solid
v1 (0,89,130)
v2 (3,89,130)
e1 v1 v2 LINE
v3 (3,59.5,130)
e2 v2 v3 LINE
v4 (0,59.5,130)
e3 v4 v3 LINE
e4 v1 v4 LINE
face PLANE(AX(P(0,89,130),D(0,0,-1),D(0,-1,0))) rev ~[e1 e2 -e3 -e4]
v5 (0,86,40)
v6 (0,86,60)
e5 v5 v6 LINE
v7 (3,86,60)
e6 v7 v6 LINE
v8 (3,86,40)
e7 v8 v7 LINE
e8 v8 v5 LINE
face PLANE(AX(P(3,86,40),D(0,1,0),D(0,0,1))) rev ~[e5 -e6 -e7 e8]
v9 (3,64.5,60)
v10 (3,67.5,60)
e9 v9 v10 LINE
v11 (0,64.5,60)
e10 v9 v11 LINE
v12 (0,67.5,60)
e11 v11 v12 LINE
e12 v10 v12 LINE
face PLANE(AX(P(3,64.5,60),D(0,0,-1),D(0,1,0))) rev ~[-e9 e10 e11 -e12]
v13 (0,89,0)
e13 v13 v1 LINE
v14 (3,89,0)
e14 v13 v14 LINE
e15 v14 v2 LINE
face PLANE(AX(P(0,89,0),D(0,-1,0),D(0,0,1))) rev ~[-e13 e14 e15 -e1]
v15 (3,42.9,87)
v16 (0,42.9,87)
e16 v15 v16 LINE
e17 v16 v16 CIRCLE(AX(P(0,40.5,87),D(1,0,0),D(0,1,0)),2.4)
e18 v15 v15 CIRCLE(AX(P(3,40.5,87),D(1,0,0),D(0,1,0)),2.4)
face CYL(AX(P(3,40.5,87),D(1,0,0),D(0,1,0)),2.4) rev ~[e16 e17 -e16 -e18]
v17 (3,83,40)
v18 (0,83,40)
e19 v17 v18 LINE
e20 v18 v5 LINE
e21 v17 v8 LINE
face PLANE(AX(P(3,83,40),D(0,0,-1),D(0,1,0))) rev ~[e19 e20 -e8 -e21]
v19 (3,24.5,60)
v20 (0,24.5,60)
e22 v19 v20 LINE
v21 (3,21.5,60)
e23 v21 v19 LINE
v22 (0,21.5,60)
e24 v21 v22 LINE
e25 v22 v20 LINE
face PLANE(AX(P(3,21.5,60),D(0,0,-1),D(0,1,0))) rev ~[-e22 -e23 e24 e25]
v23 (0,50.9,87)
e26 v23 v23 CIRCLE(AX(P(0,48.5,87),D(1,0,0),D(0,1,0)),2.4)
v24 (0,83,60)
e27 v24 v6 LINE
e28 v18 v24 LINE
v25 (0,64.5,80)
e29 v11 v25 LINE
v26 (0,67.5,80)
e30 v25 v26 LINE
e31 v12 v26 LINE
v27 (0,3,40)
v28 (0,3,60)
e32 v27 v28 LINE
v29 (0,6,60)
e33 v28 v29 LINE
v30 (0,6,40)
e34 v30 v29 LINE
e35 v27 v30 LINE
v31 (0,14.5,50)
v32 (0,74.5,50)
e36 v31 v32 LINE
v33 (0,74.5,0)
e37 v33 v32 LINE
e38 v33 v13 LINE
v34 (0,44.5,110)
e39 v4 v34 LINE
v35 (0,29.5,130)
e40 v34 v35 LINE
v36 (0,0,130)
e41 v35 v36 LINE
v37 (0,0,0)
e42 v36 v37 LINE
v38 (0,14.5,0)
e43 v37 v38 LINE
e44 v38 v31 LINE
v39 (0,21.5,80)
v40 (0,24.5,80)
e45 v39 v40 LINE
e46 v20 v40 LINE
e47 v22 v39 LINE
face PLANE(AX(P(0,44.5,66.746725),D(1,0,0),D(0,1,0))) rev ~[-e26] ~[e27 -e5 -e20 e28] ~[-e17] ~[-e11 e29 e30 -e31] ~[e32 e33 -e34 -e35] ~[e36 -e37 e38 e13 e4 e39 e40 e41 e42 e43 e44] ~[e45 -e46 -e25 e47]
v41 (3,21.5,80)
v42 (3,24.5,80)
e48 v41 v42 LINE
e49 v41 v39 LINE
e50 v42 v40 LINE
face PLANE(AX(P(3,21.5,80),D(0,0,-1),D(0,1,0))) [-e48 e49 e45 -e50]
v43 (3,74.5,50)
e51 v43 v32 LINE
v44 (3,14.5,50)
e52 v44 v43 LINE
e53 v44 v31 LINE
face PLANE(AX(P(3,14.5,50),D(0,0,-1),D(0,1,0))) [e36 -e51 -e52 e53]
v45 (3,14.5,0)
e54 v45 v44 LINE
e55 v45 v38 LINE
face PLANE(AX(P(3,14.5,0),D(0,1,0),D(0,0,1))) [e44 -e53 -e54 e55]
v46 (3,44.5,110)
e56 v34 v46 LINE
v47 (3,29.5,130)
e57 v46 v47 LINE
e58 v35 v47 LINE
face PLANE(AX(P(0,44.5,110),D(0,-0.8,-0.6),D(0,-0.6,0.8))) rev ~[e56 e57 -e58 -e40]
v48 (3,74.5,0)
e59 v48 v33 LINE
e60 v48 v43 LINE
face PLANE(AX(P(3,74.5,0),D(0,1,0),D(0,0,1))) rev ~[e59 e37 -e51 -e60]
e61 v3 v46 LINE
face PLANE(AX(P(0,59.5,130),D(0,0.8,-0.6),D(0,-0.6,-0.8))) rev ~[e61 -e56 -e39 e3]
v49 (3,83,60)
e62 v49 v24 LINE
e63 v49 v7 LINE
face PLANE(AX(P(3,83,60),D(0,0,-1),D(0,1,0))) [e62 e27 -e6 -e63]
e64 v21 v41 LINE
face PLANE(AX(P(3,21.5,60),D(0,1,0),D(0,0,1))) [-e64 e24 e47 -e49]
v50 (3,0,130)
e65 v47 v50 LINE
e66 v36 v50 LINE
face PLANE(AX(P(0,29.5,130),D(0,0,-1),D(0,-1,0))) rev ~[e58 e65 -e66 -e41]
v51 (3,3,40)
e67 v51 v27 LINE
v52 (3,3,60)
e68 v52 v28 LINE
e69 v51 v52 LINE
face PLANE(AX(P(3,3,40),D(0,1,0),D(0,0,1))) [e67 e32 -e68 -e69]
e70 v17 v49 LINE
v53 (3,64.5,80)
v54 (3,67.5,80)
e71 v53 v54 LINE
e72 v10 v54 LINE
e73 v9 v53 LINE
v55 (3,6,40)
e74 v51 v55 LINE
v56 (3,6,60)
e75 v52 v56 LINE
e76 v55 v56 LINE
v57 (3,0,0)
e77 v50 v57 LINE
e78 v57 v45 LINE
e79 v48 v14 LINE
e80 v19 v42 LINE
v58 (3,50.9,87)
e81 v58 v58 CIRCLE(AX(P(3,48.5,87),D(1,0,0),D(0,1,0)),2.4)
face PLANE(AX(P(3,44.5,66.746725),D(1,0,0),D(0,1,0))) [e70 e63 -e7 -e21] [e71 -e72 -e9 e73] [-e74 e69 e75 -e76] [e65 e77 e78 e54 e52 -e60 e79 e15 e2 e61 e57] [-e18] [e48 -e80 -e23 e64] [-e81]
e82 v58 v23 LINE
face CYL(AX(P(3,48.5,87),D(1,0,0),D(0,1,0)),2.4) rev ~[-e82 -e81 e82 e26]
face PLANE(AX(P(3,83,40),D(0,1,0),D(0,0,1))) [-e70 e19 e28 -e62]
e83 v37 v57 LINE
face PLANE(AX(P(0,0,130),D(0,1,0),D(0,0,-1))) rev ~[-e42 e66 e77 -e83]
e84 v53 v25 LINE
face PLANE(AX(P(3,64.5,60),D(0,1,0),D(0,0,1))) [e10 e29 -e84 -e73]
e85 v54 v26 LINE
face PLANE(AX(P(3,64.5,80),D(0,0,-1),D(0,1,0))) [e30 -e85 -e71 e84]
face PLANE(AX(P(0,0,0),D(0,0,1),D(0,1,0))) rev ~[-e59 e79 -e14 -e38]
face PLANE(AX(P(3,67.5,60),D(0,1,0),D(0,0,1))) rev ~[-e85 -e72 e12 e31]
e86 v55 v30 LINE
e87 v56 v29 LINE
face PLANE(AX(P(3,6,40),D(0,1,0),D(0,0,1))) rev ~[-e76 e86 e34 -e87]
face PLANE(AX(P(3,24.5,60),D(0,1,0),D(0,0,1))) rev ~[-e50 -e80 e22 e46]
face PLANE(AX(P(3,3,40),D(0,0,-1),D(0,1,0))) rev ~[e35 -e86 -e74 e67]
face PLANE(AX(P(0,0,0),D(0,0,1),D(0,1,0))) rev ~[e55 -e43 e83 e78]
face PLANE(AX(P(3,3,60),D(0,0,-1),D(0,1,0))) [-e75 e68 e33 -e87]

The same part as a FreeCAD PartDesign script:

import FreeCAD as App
import Part
import Sketcher

doc = App.newDocument("Part")
params = doc.addObject("Spreadsheet::Sheet", "Params")
for row, (alias, value) in enumerate([
    ("sketch1_width", "89 mm"),
    ("sketch1_height", "130 mm"),
    ("sketch1_length", "25 mm"),
    ("sketch1_width2", "29.5 mm"),
    ("pad1_length", "3 mm"),
    ("sketch2_diameter", "4.8 mm"),
    ("sketch2_width", "3 mm"),
    ("sketch2_width2", "60 mm"),
    ("sketch2_height", "20 mm"),
    ("sketch2_height2", "50 mm"),
    ("pocket1_length", "25 mm"),
], start=1):
    params.set(f"A{row}", alias)
    params.set(f"B{row}", "=" + value)
    params.setAlias(f"B{row}", alias)

body = doc.addObject("PartDesign::Body", "Body")

# Sketch on YZ plane
sketch1 = body.newObject("Sketcher::SketchObject", "Sketch")
sketch1.AttachmentSupport = (doc.getObject("YZ_Plane"), [""])
sketch1.MapMode = "FlatFace"
sketch1.addGeometry([
    Part.LineSegment(App.Vector(30, 130, 0), App.Vector(0, 130, 0)),  # 0
    Part.LineSegment(App.Vector(0, 130, 0), App.Vector(0, 0, 0)),  # 1
    Part.LineSegment(App.Vector(0, 0, 0), App.Vector(89, 0, 0)),  # 2
    Part.LineSegment(App.Vector(89, 0, 0), App.Vector(89, 130, 0)),  # 3
    Part.LineSegment(App.Vector(89, 130, 0), App.Vector(60, 130, 0)),  # 4
    Part.LineSegment(App.Vector(60, 130, 0), App.Vector(44, 110, 0)),  # 5
    Part.LineSegment(App.Vector(44, 110, 0), App.Vector(30, 130, 0)),  # 6
], False)
sketch1.addConstraint([
    Sketcher.Constraint("Coincident", 0, 2, 1, 1),
    Sketcher.Constraint("Coincident", 1, 2, 2, 1),
    Sketcher.Constraint("Coincident", 2, 2, 3, 1),
    Sketcher.Constraint("Coincident", 3, 2, 4, 1),
    Sketcher.Constraint("Coincident", 4, 2, 5, 1),
    Sketcher.Constraint("Coincident", 5, 2, 6, 1),
    Sketcher.Constraint("Coincident", 6, 2, 0, 1),
    Sketcher.Constraint("Horizontal", 0),
    Sketcher.Constraint("Vertical", 1),
    Sketcher.Constraint("Horizontal", 2),
    Sketcher.Constraint("Vertical", 3),
    Sketcher.Constraint("Horizontal", 4),
    Sketcher.Constraint("Coincident", 1, 2, -1, 1),
    Sketcher.Constraint("Horizontal", 0, 2, 3, 2),
    Sketcher.Constraint("Equal", 0, 4),
    Sketcher.Constraint("Equal", 5, 6),
    Sketcher.Constraint("DistanceX", 2, 1, 2, 2, 89.0),
    Sketcher.Constraint("DistanceY", 1, 2, 1, 1, 130.0),
    Sketcher.Constraint("Distance", 5, 25.0),
    Sketcher.Constraint("DistanceX", 0, 2, 0, 1, 29.5),
])
sketch1.setExpression("Constraints[16]", "Params.sketch1_width")
sketch1.setExpression("Constraints[17]", "Params.sketch1_height")
sketch1.setExpression("Constraints[18]", "Params.sketch1_length")
sketch1.setExpression("Constraints[19]", "Params.sketch1_width2")
pad1 = body.newObject("PartDesign::Pad", "Pad")
pad1.Profile = sketch1
pad1.setExpression("Length", "Params.pad1_length")

# Sketch on YZ plane
sketch2 = body.newObject("Sketcher::SketchObject", "Sketch001")
sketch2.AttachmentSupport = (doc.getObject("YZ_Plane"), [""])
sketch2.MapMode = "FlatFace"
sketch2.AttachmentOffset = App.Placement(App.Vector(0, 0, 3), App.Rotation())
sketch2.addGeometry([
    Part.LineSegment(App.Vector(3, 60, 0), App.Vector(3, 40, 0)),  # 0
    Part.LineSegment(App.Vector(3, 40, 0), App.Vector(6, 40, 0)),  # 1
    Part.LineSegment(App.Vector(6, 40, 0), App.Vector(6, 60, 0)),  # 2
    Part.LineSegment(App.Vector(6, 60, 0), App.Vector(3, 60, 0)),  # 3
    Part.LineSegment(App.Vector(83, 60, 0), App.Vector(83, 40, 0)),  # 4
    Part.LineSegment(App.Vector(83, 40, 0), App.Vector(86, 40, 0)),  # 5
    Part.LineSegment(App.Vector(86, 40, 0), App.Vector(86, 60, 0)),  # 6
    Part.LineSegment(App.Vector(86, 60, 0), App.Vector(83, 60, 0)),  # 7
    Part.Circle(App.Vector(40.5, 87, 0), App.Vector(0, 0, 1), 2.4),  # 8
    Part.Circle(App.Vector(48.5, 87, 0), App.Vector(0, 0, 1), 2.4),  # 9
    Part.LineSegment(App.Vector(21.5, 80, 0), App.Vector(21.5, 60, 0)),  # 10
    Part.LineSegment(App.Vector(21.5, 60, 0), App.Vector(24.5, 60, 0)),  # 11
    Part.LineSegment(App.Vector(24.5, 60, 0), App.Vector(24.5, 80, 0)),  # 12
    Part.LineSegment(App.Vector(24.5, 80, 0), App.Vector(21.5, 80, 0)),  # 13
    Part.LineSegment(App.Vector(64.5, 80, 0), App.Vector(64.5, 60, 0)),  # 14
    Part.LineSegment(App.Vector(64.5, 60, 0), App.Vector(67.5, 60, 0)),  # 15
    Part.LineSegment(App.Vector(67.5, 60, 0), App.Vector(67.5, 80, 0)),  # 16
    Part.LineSegment(App.Vector(67.5, 80, 0), App.Vector(64.5, 80, 0)),  # 17
    Part.LineSegment(App.Vector(14.5, 50, 0), App.Vector(14.5, 0, 0)),  # 18
    Part.LineSegment(App.Vector(14.5, 0, 0), App.Vector(74.5, 0, 0)),  # 19
    Part.LineSegment(App.Vector(74.5, 0, 0), App.Vector(74.5, 50, 0)),  # 20
    Part.LineSegment(App.Vector(74.5, 50, 0), App.Vector(14.5, 50, 0)),  # 21
], False)
sketch2.addConstraint([
    Sketcher.Constraint("Coincident", 0, 2, 1, 1),
    Sketcher.Constraint("Coincident", 1, 2, 2, 1),
    Sketcher.Constraint("Coincident", 2, 2, 3, 1),
    Sketcher.Constraint("Coincident", 3, 2, 0, 1),
    Sketcher.Constraint("Coincident", 4, 2, 5, 1),
    Sketcher.Constraint("Coincident", 5, 2, 6, 1),
    Sketcher.Constraint("Coincident", 6, 2, 7, 1),
    Sketcher.Constraint("Coincident", 7, 2, 4, 1),
    Sketcher.Constraint("Coincident", 10, 2, 11, 1),
    Sketcher.Constraint("Coincident", 11, 2, 12, 1),
    Sketcher.Constraint("Coincident", 12, 2, 13, 1),
    Sketcher.Constraint("Coincident", 13, 2, 10, 1),
    Sketcher.Constraint("Coincident", 14, 2, 15, 1),
    Sketcher.Constraint("Coincident", 15, 2, 16, 1),
    Sketcher.Constraint("Coincident", 16, 2, 17, 1),
    Sketcher.Constraint("Coincident", 17, 2, 14, 1),
    Sketcher.Constraint("Coincident", 18, 2, 19, 1),
    Sketcher.Constraint("Coincident", 19, 2, 20, 1),
    Sketcher.Constraint("Coincident", 20, 2, 21, 1),
    Sketcher.Constraint("Coincident", 21, 2, 18, 1),
    Sketcher.Constraint("Vertical", 0),
    Sketcher.Constraint("Horizontal", 1),
    Sketcher.Constraint("Vertical", 2),
    Sketcher.Constraint("Horizontal", 3),
    Sketcher.Constraint("Vertical", 4),
    Sketcher.Constraint("Horizontal", 5),
    Sketcher.Constraint("Vertical", 6),
    Sketcher.Constraint("Horizontal", 7),
    Sketcher.Constraint("Vertical", 10),
    Sketcher.Constraint("Horizontal", 11),
    Sketcher.Constraint("Vertical", 12),
    Sketcher.Constraint("Horizontal", 13),
    Sketcher.Constraint("Vertical", 14),
    Sketcher.Constraint("Horizontal", 15),
    Sketcher.Constraint("Vertical", 16),
    Sketcher.Constraint("Horizontal", 17),
    Sketcher.Constraint("Vertical", 18),
    Sketcher.Constraint("Horizontal", 19),
    Sketcher.Constraint("Vertical", 20),
    Sketcher.Constraint("Horizontal", 21),
    Sketcher.Constraint("Equal", 8, 9),
    Sketcher.Constraint("PointOnObject", 18, 2, -1),
    Sketcher.Constraint("Horizontal", 8, 3, 9, 3),
    Sketcher.Constraint("Horizontal", 1, 2, 4, 2),
    Sketcher.Constraint("Horizontal", 3, 2, 6, 2),
    Sketcher.Constraint("Horizontal", 7, 2, 10, 2),
    Sketcher.Constraint("Horizontal", 11, 2, 14, 2),
    Sketcher.Constraint("Horizontal", 13, 2, 16, 2),
    Sketcher.Constraint("Equal", 3, 5),
    Sketcher.Constraint("Equal", 7, 11),
    Sketcher.Constraint("Equal", 13, 15),
    Sketcher.Constraint("Equal", 6, 10),
    Sketcher.Constraint("Diameter", 8, 4.8),
    Sketcher.Constraint("DistanceX", 1, 1, 1, 2, 3.0),
    Sketcher.Constraint("DistanceX", 19, 1, 19, 2, 60.0),
    Sketcher.Constraint("DistanceY", 0, 2, 0, 1, 20.0),
    Sketcher.Constraint("DistanceY", 18, 2, 18, 1, 50.0),
    Sketcher.Constraint("DistanceY", -1, 1, 8, 3, 87.0),
    Sketcher.Constraint("DistanceX", -1, 1, 0, 2, 3.0),
    Sketcher.Constraint("DistanceY", -1, 1, 0, 2, 40.0),
    Sketcher.Constraint("DistanceX", -1, 1, 4, 2, 83.0),
    Sketcher.Constraint("DistanceX", 8, 3, 9, 3, 8.0),
    Sketcher.Constraint("DistanceX", 10, 2, 8, 3, 19.0),
    Sketcher.Constraint("DistanceX", 9, 3, 14, 2, 16.0),
    Sketcher.Constraint("DistanceX", 18, 2, 10, 2, 7.0),
    Sketcher.Constraint("DistanceX", -1, 1, 8, 3, 40.5),
])
sketch2.setExpression("Constraints[52]", "Params.sketch2_diameter")
sketch2.setExpression("Constraints[53]", "Params.sketch2_width")
sketch2.setExpression("Constraints[54]", "Params.sketch2_width2")
sketch2.setExpression("Constraints[55]", "Params.sketch2_height")
sketch2.setExpression("Constraints[56]", "Params.sketch2_height2")
pocket1 = body.newObject("PartDesign::Pocket", "Pocket")
pocket1.Profile = sketch2
pocket1.setExpression("Length", "Params.pocket1_length")

doc.recompute()
